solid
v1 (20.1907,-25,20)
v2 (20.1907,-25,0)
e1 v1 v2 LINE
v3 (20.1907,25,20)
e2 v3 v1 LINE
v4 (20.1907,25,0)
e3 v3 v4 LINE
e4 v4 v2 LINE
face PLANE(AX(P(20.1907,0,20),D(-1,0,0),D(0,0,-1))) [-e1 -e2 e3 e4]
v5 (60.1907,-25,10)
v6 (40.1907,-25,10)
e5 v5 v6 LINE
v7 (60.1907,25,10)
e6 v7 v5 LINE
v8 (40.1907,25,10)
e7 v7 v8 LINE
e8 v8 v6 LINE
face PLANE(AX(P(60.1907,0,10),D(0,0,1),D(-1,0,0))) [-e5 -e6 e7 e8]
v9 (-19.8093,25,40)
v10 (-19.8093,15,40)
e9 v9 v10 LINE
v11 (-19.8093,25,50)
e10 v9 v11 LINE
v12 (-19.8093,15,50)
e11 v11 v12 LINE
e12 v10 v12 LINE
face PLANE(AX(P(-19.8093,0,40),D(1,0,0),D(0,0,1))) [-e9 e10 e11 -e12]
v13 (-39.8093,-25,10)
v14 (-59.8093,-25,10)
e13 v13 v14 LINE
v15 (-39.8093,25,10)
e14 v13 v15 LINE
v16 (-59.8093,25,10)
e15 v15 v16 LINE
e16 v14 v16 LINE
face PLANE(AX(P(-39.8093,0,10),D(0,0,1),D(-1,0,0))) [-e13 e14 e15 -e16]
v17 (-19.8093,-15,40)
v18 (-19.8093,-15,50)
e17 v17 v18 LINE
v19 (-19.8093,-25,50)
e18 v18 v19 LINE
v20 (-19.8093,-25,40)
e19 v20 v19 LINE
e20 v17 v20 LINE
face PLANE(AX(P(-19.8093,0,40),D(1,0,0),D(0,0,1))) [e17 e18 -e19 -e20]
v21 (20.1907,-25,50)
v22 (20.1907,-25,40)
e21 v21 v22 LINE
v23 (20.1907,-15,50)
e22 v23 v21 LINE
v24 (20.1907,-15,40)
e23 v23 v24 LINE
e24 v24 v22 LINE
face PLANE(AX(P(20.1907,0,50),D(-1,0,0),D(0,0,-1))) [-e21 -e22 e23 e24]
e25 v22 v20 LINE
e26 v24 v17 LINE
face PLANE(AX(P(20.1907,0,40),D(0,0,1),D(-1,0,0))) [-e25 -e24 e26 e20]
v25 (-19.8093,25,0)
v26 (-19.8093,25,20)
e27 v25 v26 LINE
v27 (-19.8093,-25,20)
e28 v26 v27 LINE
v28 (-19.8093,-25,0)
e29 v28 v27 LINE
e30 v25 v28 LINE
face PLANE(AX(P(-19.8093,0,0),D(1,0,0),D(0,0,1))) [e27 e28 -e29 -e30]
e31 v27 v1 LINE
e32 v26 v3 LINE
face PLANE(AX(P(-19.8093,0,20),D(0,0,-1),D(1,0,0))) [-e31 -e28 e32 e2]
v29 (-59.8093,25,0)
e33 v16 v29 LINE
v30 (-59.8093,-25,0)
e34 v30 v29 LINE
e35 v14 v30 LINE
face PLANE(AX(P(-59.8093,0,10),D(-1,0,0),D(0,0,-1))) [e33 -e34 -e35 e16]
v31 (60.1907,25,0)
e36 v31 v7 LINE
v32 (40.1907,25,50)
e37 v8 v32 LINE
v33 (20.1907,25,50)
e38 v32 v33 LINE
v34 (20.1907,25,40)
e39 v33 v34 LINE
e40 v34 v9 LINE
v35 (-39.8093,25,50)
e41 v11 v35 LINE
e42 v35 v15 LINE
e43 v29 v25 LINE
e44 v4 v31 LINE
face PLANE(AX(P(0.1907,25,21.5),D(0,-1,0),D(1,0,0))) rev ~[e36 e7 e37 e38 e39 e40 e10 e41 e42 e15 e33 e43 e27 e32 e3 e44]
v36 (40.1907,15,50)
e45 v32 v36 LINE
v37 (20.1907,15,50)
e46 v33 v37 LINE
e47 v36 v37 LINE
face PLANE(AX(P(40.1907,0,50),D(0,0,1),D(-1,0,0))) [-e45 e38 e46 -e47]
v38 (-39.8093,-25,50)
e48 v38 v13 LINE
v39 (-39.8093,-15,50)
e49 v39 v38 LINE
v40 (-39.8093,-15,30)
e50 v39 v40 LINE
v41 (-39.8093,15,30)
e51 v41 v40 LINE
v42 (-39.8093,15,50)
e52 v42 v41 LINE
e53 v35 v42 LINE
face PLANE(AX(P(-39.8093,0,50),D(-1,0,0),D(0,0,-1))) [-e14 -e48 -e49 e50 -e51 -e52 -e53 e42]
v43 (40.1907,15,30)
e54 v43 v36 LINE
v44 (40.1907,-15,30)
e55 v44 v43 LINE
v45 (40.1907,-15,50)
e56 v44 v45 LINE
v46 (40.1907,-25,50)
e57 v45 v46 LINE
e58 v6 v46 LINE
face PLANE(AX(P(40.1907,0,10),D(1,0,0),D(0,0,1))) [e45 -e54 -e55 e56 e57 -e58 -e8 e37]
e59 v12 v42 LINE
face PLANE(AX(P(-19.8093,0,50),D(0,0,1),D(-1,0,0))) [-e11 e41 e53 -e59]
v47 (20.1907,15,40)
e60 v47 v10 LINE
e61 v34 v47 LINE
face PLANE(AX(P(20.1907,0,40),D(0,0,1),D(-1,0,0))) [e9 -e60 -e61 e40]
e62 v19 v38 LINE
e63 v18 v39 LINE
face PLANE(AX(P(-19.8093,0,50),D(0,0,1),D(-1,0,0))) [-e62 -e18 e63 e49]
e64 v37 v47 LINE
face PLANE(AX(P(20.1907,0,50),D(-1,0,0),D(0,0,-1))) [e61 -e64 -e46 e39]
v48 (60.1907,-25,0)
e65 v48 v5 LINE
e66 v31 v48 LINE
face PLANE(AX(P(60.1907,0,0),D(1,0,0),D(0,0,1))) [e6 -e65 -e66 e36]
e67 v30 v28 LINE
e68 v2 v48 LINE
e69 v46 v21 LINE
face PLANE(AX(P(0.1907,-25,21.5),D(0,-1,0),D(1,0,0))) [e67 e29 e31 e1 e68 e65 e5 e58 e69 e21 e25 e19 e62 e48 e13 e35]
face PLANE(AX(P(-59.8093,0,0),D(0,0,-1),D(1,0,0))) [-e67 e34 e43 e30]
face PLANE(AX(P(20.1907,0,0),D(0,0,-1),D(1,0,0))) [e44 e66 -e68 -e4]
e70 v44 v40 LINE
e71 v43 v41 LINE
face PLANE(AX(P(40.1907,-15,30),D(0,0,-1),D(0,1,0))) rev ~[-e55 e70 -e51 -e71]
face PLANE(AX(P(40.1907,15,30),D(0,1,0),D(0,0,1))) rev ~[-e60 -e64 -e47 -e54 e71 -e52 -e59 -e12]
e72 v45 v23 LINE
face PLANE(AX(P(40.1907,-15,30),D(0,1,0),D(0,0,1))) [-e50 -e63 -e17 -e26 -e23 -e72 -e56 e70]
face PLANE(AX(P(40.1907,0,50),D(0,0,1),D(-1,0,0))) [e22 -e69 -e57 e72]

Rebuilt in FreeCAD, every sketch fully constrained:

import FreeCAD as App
import Part
import Sketcher
from FreeCAD import Vector


def add_polygon(sketch, points):
    """Adds a closed chain of lines whose ends are joined by coincident constraints."""
    first, n = sketch.GeometryCount, len(points)
    for a, b in zip(points, points[1:] + points[:1]):
        sketch.addGeometry(Part.LineSegment(App.Vector(*a, 0), App.Vector(*b, 0)), False)
    for i in range(n):
        sketch.addConstraint(Sketcher.Constraint("Coincident", first + i, 2, first + (i + 1) % n, 1))

doc = App.newDocument("Part")
params = doc.addObject("Spreadsheet::Sheet", "Params")
for row, (alias, value) in enumerate([
    ("sketch1_width", "40 mm"),
    ("sketch1_height", "10 mm"),
    ("pad1_length", "50 mm"),
    ("sketch2_width", "30 mm"),
    ("sketch2_height", "20 mm"),
], start=1):
    params.set(f"A{row}", alias)
    params.set(f"B{row}", "=" + value)
    params.setAlias(f"B{row}", alias)

body = doc.addObject("PartDesign::Body", "Body")

# Sketch on XZ plane
sketch1 = doc.addObject("Sketcher::SketchObject", "Sketch")
body.addObject(sketch1)
sketch1.AttachmentSupport = (doc.XZ_Plane, [""])
sketch1.MapMode = "FlatFace"
add_polygon(sketch1, [(-59.8093, 0), (-19.8093, 0), (-19.8093, 20), (20.1907, 20), (20.1907, 0), (60.1907, 0), (60.1907, 10), (40.1907, 10), (40.1907, 50), (20.1907, 50), (20.1907, 40), (-19.8093, 40), (-19.8093, 50), (-39.8093, 50), (-39.8093, 10), (-59.8093, 10)])  # lines 0-15
sketch1.addConstraint([
    Sketcher.Constraint("Horizontal", 0),
    Sketcher.Constraint("Vertical", 1),
    Sketcher.Constraint("Horizontal", 2),
    Sketcher.Constraint("Vertical", 3),
    Sketcher.Constraint("Horizontal", 4),
    Sketcher.Constraint("Vertical", 5),
    Sketcher.Constraint("Horizontal", 6),
    Sketcher.Constraint("Vertical", 7),
    Sketcher.Constraint("Horizontal", 8),
    Sketcher.Constraint("Vertical", 9),
    Sketcher.Constraint("Horizontal", 10),
    Sketcher.Constraint("Vertical", 11),
    Sketcher.Constraint("Horizontal", 12),
    Sketcher.Constraint("Vertical", 13),
    Sketcher.Constraint("Horizontal", 14),
    Sketcher.Constraint("Vertical", 15),
    Sketcher.Constraint("PointOnObject", 0, 2, -1),
    Sketcher.Constraint("PointOnObject", 3, 2, -1),
    Sketcher.Constraint("Horizontal", 8, 2, 11, 2),
    Sketcher.Constraint("Horizontal", 6, 2, 13, 2),
    Sketcher.Constraint("Vertical", 3, 2, 8, 2),
    Sketcher.Constraint("Vertical", 1, 2, 10, 2),
    Sketcher.Constraint("Equal", 0, 2),
    Sketcher.Constraint("Equal", 2, 4),
    Sketcher.Constraint("Equal", 6, 8),
    Sketcher.Constraint("Equal", 8, 12),
    Sketcher.Constraint("Equal", 14, 1),
    Sketcher.Constraint("Equal", 10, 7),
    Sketcher.Constraint("Equal", 5, 9),
    Sketcher.Constraint("DistanceX", 0, 1, 0, 2, 40.0),
    Sketcher.Constraint("DistanceY", 5, 1, 5, 2, 10.0),
    Sketcher.Constraint("DistanceX", 0, 2, -1, 1, 19.8093),
])
sketch1.setExpression("Constraints[45]", "Params.sketch1_width")
sketch1.setExpression("Constraints[46]", "Params.sketch1_height")
pad1 = doc.addObject("PartDesign::Pad", "Pad")
body.addObject(pad1)
pad1.Profile = sketch1
pad1.setExpression("Length", "Params.pad1_length")
pad1.Midplane = True

# Sketch on YZ plane
sketch2 = doc.addObject("Sketcher::SketchObject", "Sketch001")
body.addObject(sketch2)
sketch2.AttachmentSupport = (doc.YZ_Plane, [""])
sketch2.MapMode = "FlatFace"
sketch2.AttachmentOffset = App.Placement(Vector(0, 0, 40.1907), App.Rotation())
add_polygon(sketch2, [(-15, 50), (-15, 30), (15, 30), (15, 50)])  # lines 0-3
sketch2.addConstraint([
    Sketcher.Constraint("Vertical", 0),
    Sketcher.Constraint("Horizontal", 1),
    Sketcher.Constraint("Vertical", 2),
    Sketcher.Constraint("Horizontal", 3),
    Sketcher.Constraint("DistanceX", 1, 1, 1, 2, 30.0),
    Sketcher.Constraint("DistanceY", 0, 2, 0, 1, 20.0),
    Sketcher.Constraint("DistanceX", 0, 2, -1, 1, 15.0),
    Sketcher.Constraint("DistanceY", -1, 1, 0, 2, 30.0),
])
sketch2.setExpression("Constraints[8]", "Params.sketch2_width")
sketch2.setExpression("Constraints[9]", "Params.sketch2_height")
pocket1 = doc.addObject("PartDesign::Pocket", "Pocket")
body.addObject(pocket1)
pocket1.Profile = sketch2
pocket1.Type = "ThroughAll"

doc.recompute()
